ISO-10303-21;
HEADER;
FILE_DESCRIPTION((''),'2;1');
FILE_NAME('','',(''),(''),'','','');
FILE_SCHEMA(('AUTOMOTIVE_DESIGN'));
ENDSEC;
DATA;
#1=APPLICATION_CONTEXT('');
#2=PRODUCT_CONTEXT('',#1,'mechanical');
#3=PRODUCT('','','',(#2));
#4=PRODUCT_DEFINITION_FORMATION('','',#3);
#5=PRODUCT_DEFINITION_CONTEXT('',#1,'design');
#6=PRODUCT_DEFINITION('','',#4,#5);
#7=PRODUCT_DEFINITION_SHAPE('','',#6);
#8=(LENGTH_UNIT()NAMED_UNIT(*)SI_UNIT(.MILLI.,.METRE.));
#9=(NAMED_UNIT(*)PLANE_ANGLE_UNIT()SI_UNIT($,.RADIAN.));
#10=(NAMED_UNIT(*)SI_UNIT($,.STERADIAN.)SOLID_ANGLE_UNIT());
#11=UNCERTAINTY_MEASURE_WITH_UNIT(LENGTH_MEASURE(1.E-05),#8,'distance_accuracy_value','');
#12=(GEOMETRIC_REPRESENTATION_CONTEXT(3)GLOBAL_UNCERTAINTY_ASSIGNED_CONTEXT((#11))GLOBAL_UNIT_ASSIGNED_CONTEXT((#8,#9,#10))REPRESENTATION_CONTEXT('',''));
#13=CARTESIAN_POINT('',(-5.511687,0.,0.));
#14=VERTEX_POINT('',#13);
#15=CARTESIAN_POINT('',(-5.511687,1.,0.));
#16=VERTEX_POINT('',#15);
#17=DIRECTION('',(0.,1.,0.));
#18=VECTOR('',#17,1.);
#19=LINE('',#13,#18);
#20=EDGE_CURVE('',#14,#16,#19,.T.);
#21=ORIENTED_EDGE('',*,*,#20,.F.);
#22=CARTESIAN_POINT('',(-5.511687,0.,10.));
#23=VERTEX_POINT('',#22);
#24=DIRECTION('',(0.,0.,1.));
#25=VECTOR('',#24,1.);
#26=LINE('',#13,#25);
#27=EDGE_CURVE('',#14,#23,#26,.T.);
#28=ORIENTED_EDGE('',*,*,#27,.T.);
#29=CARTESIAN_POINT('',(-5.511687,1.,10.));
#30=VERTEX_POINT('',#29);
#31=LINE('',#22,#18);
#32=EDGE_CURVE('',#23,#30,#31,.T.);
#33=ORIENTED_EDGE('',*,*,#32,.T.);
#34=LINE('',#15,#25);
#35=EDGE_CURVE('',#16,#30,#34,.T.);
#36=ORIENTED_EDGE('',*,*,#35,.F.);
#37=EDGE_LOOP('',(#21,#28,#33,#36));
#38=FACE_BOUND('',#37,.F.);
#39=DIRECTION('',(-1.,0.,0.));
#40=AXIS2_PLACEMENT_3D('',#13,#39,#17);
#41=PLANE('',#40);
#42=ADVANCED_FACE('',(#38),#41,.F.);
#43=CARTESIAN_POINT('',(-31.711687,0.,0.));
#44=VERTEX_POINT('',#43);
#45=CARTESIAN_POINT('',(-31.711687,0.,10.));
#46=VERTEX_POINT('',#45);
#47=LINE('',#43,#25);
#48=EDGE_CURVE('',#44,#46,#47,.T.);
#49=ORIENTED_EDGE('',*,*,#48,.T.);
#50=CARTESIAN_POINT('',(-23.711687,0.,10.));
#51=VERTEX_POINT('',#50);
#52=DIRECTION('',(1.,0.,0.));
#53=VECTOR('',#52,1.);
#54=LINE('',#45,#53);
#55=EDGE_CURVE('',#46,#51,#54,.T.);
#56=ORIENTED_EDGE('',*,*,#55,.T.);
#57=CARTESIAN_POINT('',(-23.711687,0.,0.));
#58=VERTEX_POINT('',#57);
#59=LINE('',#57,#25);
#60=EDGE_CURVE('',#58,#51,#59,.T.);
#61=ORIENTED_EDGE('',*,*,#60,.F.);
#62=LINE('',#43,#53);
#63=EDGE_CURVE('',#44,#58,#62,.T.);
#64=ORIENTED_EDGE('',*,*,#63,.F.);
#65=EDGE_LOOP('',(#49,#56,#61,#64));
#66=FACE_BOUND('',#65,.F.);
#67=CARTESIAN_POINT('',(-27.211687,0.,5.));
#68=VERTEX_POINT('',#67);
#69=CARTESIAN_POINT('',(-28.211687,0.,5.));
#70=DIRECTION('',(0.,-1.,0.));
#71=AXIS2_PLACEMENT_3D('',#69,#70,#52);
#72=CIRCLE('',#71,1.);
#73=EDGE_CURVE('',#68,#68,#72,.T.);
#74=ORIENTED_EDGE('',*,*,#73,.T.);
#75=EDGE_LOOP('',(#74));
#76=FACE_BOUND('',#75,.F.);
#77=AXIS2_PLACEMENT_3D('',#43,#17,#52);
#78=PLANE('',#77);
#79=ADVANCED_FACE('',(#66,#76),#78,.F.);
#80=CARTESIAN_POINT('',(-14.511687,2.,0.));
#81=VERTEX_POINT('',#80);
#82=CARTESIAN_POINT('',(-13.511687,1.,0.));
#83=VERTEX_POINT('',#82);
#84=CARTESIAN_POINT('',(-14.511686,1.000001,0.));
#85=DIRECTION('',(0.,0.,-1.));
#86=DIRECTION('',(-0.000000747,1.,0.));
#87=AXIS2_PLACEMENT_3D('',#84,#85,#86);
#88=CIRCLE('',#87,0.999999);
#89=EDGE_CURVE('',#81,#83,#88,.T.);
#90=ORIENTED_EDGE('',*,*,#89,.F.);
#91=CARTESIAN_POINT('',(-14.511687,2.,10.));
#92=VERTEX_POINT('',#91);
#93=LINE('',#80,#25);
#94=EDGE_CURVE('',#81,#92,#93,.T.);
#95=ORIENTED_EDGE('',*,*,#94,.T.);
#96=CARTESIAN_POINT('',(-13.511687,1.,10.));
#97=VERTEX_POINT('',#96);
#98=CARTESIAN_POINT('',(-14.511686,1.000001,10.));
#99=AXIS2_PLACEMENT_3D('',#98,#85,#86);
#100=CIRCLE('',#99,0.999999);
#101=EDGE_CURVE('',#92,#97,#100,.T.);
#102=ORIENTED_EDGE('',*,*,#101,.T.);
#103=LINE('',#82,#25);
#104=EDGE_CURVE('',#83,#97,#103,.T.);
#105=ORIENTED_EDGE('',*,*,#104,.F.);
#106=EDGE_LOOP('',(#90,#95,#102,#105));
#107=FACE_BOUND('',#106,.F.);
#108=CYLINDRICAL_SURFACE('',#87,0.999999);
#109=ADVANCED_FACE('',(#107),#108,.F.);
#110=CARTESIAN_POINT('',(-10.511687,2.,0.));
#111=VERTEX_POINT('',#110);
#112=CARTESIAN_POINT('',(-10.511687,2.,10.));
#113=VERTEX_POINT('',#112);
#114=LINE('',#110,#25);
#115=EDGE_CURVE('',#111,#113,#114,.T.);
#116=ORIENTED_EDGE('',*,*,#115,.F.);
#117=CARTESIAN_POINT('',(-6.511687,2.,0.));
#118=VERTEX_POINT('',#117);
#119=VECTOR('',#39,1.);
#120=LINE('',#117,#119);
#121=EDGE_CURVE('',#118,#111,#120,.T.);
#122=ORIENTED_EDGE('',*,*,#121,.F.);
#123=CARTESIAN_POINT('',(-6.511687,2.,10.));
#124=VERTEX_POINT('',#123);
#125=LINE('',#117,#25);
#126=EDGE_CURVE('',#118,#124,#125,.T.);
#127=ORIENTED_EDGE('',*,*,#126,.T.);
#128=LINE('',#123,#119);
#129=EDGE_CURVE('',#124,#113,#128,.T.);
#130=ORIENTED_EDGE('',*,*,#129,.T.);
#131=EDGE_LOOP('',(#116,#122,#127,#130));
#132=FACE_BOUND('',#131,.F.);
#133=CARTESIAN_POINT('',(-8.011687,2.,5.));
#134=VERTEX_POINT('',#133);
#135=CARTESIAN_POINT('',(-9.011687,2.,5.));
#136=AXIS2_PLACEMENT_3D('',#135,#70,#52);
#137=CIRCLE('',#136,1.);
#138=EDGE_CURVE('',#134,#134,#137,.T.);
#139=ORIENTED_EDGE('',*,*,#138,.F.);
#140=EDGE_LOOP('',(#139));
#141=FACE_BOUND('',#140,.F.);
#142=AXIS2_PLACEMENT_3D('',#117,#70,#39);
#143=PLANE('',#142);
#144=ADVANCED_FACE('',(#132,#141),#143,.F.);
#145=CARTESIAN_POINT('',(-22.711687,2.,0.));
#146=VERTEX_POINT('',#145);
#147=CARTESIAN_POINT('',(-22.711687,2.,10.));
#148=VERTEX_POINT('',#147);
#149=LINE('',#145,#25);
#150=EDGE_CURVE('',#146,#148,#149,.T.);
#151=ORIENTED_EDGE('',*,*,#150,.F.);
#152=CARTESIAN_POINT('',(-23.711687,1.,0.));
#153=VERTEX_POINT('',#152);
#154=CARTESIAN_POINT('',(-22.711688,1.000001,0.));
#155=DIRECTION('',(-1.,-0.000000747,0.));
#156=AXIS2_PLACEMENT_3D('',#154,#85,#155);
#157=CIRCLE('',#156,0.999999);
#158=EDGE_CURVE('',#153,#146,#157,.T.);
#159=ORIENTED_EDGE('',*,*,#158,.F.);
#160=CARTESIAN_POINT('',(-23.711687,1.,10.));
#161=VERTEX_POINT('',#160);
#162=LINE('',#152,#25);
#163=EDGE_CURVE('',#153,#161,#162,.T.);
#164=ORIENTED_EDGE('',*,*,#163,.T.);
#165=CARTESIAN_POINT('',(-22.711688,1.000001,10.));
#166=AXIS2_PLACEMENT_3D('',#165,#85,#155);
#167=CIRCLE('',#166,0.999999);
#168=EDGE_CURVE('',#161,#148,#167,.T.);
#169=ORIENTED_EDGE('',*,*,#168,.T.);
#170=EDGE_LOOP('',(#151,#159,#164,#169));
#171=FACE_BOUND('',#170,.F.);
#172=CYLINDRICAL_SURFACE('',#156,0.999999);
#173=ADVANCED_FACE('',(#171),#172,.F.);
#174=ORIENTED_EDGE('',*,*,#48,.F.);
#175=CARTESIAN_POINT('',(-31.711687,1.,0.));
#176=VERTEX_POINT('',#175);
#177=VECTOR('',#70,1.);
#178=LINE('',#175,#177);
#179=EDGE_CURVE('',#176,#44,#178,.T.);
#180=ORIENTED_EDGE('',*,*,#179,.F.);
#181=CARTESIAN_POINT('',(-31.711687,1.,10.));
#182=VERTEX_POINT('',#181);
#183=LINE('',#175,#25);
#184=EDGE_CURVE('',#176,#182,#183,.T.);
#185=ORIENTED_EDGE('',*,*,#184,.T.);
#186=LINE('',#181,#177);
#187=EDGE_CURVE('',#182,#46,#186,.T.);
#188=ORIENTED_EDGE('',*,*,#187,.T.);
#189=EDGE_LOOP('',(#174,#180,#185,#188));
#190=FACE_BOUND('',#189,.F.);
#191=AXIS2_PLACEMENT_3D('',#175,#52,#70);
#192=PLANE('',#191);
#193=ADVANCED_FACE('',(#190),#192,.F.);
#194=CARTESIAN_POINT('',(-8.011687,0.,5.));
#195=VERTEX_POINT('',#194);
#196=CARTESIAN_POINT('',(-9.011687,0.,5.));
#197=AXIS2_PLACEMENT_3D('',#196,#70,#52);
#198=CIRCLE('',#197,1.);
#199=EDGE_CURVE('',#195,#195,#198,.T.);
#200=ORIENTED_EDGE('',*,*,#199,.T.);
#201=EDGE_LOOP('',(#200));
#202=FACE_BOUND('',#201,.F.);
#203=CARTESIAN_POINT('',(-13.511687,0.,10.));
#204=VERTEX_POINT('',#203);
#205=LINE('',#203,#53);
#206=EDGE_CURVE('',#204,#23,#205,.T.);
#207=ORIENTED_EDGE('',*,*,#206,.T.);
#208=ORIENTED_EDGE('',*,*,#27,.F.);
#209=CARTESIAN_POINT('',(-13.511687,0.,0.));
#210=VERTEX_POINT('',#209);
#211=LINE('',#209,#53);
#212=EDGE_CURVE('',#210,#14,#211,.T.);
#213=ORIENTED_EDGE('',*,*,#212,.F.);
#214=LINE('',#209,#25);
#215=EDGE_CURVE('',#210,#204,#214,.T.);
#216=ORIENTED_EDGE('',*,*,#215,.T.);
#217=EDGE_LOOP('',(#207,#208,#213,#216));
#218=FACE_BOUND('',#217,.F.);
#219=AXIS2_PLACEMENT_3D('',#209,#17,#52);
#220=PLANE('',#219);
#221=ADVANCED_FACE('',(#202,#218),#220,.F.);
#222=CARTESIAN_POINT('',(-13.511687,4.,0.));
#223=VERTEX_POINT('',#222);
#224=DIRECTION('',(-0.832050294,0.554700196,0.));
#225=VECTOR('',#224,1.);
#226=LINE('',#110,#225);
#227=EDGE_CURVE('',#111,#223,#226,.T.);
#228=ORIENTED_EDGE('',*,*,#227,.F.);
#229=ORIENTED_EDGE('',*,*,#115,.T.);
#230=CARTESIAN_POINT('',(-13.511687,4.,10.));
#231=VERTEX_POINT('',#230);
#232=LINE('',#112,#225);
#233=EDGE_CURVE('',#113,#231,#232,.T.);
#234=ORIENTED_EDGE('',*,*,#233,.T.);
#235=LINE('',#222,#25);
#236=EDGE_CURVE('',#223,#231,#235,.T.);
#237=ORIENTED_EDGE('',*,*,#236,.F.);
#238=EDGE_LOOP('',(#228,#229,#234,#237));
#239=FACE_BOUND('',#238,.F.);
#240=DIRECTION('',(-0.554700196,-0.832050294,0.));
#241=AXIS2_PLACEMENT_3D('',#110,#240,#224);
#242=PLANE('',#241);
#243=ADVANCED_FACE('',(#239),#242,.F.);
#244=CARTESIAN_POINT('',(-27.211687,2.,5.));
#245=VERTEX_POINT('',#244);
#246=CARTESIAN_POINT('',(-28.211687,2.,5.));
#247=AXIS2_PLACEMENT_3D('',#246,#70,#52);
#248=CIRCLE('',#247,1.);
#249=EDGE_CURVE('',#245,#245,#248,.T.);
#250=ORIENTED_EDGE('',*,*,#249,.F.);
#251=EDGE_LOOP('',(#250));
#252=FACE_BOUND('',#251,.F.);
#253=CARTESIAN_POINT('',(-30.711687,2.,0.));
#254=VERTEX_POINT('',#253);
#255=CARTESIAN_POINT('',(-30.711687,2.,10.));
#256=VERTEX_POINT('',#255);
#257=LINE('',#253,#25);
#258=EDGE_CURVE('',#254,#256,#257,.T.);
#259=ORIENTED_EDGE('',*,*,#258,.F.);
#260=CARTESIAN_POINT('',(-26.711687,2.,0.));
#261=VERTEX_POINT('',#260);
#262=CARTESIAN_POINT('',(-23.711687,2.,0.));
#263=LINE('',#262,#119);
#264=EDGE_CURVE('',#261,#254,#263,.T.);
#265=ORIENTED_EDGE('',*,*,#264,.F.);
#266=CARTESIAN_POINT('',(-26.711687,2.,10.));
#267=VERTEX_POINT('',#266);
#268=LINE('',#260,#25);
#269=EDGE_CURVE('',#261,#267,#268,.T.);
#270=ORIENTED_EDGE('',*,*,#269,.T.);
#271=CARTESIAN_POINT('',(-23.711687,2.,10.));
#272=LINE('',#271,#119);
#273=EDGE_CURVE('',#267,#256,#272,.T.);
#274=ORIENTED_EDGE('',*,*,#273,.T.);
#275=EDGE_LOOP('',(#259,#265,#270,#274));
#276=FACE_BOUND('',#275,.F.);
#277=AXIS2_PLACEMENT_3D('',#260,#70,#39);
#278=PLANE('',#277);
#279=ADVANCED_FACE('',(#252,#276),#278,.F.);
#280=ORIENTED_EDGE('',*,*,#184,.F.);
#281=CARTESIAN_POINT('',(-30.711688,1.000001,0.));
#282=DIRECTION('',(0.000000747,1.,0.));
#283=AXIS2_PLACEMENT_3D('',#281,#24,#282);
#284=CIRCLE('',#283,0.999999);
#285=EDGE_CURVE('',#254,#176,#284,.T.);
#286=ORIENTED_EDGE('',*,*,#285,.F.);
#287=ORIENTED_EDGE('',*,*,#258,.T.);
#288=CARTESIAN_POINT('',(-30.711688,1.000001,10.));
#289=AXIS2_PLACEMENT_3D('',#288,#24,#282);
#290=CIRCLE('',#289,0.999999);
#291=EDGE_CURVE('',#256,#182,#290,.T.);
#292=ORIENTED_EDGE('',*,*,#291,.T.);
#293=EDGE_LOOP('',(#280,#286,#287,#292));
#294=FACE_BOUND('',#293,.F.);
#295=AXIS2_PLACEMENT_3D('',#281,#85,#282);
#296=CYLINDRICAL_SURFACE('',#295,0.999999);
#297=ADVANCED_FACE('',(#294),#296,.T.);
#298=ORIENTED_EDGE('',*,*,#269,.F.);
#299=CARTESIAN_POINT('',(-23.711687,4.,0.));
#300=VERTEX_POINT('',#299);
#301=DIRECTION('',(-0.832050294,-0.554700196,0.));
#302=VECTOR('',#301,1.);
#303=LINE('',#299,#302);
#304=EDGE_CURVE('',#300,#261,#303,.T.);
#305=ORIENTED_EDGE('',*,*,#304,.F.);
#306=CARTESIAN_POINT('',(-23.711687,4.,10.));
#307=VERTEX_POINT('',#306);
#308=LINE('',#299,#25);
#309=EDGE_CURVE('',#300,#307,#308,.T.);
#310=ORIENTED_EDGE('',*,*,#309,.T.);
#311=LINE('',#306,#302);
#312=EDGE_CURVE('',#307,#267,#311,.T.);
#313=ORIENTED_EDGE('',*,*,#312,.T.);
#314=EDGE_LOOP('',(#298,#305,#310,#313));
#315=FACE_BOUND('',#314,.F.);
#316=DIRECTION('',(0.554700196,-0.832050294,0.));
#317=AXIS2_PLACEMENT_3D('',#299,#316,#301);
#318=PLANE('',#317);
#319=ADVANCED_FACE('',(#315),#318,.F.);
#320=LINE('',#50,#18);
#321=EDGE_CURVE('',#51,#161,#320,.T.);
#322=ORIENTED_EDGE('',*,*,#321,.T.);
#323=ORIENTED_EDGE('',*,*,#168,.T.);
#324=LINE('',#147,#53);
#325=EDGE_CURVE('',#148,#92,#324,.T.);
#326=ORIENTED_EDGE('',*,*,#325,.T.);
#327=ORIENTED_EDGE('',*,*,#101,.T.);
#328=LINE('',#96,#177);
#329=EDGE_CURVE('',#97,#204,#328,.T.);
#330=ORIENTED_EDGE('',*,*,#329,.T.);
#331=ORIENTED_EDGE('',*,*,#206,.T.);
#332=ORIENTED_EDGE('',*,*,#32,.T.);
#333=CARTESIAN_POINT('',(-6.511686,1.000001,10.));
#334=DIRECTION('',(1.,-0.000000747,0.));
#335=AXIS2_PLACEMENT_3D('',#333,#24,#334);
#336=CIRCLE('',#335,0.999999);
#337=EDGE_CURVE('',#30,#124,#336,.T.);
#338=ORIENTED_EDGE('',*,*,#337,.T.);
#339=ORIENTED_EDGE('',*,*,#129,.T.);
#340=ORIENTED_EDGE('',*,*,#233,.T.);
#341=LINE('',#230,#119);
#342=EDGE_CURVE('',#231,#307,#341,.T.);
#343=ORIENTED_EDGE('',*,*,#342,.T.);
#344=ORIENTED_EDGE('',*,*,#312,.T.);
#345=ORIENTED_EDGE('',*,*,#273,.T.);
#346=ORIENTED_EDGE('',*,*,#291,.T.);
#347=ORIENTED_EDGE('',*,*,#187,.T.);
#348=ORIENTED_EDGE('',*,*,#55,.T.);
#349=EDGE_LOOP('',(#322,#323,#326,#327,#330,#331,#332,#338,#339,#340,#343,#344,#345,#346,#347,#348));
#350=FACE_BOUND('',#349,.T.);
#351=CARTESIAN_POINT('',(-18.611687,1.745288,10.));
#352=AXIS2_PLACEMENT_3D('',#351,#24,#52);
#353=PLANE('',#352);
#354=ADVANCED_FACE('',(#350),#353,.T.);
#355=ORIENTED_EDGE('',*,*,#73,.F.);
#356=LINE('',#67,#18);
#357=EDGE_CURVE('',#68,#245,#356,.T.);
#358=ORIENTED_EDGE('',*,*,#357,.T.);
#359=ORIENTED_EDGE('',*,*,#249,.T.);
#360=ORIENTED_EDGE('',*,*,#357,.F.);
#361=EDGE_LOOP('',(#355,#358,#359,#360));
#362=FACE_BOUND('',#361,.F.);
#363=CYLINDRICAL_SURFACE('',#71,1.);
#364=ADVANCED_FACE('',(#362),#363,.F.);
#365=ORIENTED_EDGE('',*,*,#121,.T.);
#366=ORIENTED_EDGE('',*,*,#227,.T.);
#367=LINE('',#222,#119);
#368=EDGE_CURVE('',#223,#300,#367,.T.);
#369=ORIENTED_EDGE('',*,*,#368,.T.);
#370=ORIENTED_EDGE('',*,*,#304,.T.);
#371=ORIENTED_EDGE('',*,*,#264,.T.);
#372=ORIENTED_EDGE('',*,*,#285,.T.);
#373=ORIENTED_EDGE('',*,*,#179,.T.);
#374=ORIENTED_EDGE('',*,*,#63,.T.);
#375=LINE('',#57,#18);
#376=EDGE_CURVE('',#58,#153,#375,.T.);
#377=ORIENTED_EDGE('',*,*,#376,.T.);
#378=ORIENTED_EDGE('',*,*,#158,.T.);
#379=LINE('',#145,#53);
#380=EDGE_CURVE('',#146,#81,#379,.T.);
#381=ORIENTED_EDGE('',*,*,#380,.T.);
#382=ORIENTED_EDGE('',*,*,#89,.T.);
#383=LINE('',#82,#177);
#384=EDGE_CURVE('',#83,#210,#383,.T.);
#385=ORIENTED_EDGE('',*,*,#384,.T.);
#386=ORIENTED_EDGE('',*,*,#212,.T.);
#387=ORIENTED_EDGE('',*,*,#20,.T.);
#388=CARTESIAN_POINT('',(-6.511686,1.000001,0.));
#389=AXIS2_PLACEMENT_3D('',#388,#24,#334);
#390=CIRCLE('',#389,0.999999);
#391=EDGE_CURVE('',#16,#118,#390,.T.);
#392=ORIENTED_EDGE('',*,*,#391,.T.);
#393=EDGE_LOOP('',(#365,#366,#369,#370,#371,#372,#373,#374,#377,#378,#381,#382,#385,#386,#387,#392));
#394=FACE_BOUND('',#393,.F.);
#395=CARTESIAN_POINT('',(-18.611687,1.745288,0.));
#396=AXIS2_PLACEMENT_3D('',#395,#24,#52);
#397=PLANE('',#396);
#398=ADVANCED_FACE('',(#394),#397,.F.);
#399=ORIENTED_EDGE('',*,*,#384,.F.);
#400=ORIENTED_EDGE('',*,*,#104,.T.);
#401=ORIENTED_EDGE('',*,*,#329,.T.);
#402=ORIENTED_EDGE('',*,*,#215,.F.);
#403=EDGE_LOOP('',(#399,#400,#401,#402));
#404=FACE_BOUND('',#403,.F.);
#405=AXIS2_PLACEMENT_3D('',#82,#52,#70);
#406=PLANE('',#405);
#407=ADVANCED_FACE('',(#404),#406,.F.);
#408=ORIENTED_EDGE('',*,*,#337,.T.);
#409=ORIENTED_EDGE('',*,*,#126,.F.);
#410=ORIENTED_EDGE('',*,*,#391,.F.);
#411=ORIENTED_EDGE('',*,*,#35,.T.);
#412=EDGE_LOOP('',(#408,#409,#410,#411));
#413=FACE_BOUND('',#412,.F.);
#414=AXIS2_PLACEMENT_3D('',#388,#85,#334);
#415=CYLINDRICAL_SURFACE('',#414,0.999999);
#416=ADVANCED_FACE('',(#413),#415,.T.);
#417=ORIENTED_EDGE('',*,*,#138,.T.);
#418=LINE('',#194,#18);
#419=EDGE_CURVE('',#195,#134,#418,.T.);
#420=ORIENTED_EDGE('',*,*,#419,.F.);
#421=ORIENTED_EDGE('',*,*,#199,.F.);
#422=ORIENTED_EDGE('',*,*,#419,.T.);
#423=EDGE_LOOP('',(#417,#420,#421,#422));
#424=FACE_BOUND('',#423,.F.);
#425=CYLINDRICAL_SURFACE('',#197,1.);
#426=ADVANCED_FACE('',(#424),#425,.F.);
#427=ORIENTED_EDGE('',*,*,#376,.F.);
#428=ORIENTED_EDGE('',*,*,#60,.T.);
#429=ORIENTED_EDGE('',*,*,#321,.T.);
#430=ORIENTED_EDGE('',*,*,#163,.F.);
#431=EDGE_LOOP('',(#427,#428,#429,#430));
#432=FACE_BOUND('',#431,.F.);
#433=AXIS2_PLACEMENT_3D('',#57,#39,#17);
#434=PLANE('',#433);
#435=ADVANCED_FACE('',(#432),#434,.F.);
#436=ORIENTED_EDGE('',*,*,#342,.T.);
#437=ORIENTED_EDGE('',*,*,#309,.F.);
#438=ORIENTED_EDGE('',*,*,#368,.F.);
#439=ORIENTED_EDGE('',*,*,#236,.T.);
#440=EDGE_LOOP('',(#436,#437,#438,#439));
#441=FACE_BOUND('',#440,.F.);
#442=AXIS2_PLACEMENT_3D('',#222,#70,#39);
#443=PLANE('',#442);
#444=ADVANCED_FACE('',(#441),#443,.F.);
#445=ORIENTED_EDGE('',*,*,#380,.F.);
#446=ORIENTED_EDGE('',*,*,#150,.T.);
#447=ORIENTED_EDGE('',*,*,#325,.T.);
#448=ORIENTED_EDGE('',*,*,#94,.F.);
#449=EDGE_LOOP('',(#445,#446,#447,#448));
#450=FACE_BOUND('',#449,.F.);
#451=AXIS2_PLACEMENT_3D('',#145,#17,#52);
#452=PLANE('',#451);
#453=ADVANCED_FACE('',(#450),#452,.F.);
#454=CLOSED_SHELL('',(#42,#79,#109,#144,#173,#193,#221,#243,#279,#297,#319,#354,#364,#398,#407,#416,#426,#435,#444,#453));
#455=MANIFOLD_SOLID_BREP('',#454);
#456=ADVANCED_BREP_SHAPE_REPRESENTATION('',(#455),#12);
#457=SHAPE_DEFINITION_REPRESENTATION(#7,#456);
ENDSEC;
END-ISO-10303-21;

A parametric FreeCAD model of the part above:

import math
import FreeCAD as App
import Part
import Sketcher
from FreeCAD import Vector
Q = App.Units.Quantity

doc = App.newDocument("Part")
body = doc.addObject("PartDesign::Body", "Body")

# Sketch on XY plane
sketch1 = body.newObject("Sketcher::SketchObject", "Sketch")
sketch1.AttachmentSupport = (doc.getObject("XY_Plane"), [""])
sketch1.MapMode = "FlatFace"
sketch1.addGeometry([
    Part.LineSegment(Vector(-31.711687, 1, 0), Vector(-31.711687, 0, 0)),  # 0
    Part.LineSegment(Vector(-31.711687, 0, 0), Vector(-23.711687, 0, 0)),  # 1
    Part.LineSegment(Vector(-23.711687, 0, 0), Vector(-23.711687, 1, 0)),  # 2
    Part.ArcOfCircle(Part.Circle(Vector(-22.711688, 1.000001, 0), Vector(0, 0, 1), 0.999999), math.radians(89.999957), math.radians(180.000043)),  # 3
    Part.LineSegment(Vector(-22.711687, 2, 0), Vector(-14.511687, 2, 0)),  # 4
    Part.ArcOfCircle(Part.Circle(Vector(-14.511686, 1.000001, 0), Vector(0, 0, 1), 0.999999), math.radians(-0.000043), math.radians(90.000043)),  # 5
    Part.LineSegment(Vector(-13.511687, 1, 0), Vector(-13.511687, 0, 0)),  # 6
    Part.LineSegment(Vector(-13.511687, 0, 0), Vector(-5.511687, 0, 0)),  # 7
    Part.LineSegment(Vector(-5.511687, 0, 0), Vector(-5.511687, 1, 0)),  # 8
    Part.ArcOfCircle(Part.Circle(Vector(-6.511686, 1.000001, 0), Vector(0, 0, 1), 0.999999), math.radians(-0.000043), math.radians(90.000043)),  # 9
    Part.LineSegment(Vector(-6.511687, 2, 0), Vector(-10.511687, 2, 0)),  # 10
    Part.LineSegment(Vector(-10.511687, 2, 0), Vector(-13.511687, 4, 0)),  # 11
    Part.LineSegment(Vector(-13.511687, 4, 0), Vector(-23.711687, 4, 0)),  # 12
    Part.LineSegment(Vector(-23.711687, 4, 0), Vector(-26.711687, 2, 0)),  # 13
    Part.LineSegment(Vector(-26.711687, 2, 0), Vector(-30.711687, 2, 0)),  # 14
    Part.ArcOfCircle(Part.Circle(Vector(-30.711688, 1.000001, 0), Vector(0, 0, 1), 0.999999), math.radians(89.999957), math.radians(180.000043)),  # 15
], False)
sketch1.addConstraint([
    Sketcher.Constraint("Coincident", 0, 2, 1, 1),
    Sketcher.Constraint("Coincident", 1, 2, 2, 1),
    Sketcher.Constraint("Tangent", 2, 2, 3, 2),
    Sketcher.Constraint("Tangent", 3, 1, 4, 1),
    Sketcher.Constraint("Tangent", 4, 2, 5, 2),
    Sketcher.Constraint("Tangent", 5, 1, 6, 1),
    Sketcher.Constraint("Coincident", 6, 2, 7, 1),
    Sketcher.Constraint("Coincident", 7, 2, 8, 1),
    Sketcher.Constraint("Tangent", 8, 2, 9, 1),
    Sketcher.Constraint("Tangent", 9, 2, 10, 1),
    Sketcher.Constraint("Coincident", 10, 2, 11, 1),
    Sketcher.Constraint("Coincident", 11, 2, 12, 1),
    Sketcher.Constraint("Coincident", 12, 2, 13, 1),
    Sketcher.Constraint("Coincident", 13, 2, 14, 1),
    Sketcher.Constraint("Tangent", 14, 2, 15, 1),
    Sketcher.Constraint("Tangent", 15, 2, 0, 1),
    Sketcher.Constraint("Vertical", 0),
    Sketcher.Constraint("Horizontal", 1),
    Sketcher.Constraint("Vertical", 2),
    Sketcher.Constraint("Horizontal", 4),
    Sketcher.Constraint("Vertical", 6),
    Sketcher.Constraint("Horizontal", 7),
    Sketcher.Constraint("Vertical", 8),
    Sketcher.Constraint("Horizontal", 10),
    Sketcher.Constraint("Horizontal", 12),
    Sketcher.Constraint("Horizontal", 14),
    Sketcher.Constraint("Equal", 3, 5),
    Sketcher.Constraint("Equal", 5, 9),
    Sketcher.Constraint("Equal", 9, 15),
    Sketcher.Constraint("PointOnObject", 0, 2, -1),
    Sketcher.Constraint("PointOnObject", 6, 2, -1),
    Sketcher.Constraint("Horizontal", 5, 3, 9, 3),
    Sketcher.Constraint("Horizontal", 9, 3, 15, 3),
    Sketcher.Constraint("Vertical", 6, 2, 11, 2),
    Sketcher.Constraint("Vertical", 2, 2, 12, 2),
    Sketcher.Constraint("Equal", 1, 7),
    Sketcher.Constraint("Equal", 10, 14),
    Sketcher.Constraint("Radius", 3, Q("0.999999 mm")),
    Sketcher.Constraint("DistanceX", 1, 1, 1, 2, Q("8 mm")),
    Sketcher.Constraint("DistanceX", 10, 2, 10, 1, Q("4 mm")),
    Sketcher.Constraint("DistanceY", 0, 2, 0, 1, Q("1 mm")),
    Sketcher.Constraint("DistanceX", 4, 1, 4, 2, Q("8.2 mm")),
    Sketcher.Constraint("DistanceY", -1, 1, 11, 2, Q("4 mm")),
    Sketcher.Constraint("DistanceX", 3, 3, -1, 1, Q("22.711688 mm")),
])
pad1 = body.newObject("PartDesign::Pad", "Pad")
pad1.Profile = sketch1
pad1.Length = 10

# Sketch on XZ plane
sketch2 = body.newObject("Sketcher::SketchObject", "Sketch001")
sketch2.AttachmentSupport = (doc.getObject("XZ_Plane"), [""])
sketch2.MapMode = "FlatFace"
sketch2.addGeometry([
    Part.Circle(Vector(-28.211687, 5, 0), Vector(0, 0, 1), 1),
    Part.Circle(Vector(-9.011687, 5, 0), Vector(0, 0, 1), 1),
], False)
sketch2.addConstraint([
    Sketcher.Constraint("Equal", 0, 1),
    Sketcher.Constraint("Horizontal", 0, 3, 1, 3),
    Sketcher.Constraint("Diameter", 0, Q("2 mm")),
    Sketcher.Constraint("DistanceY", -1, 1, 0, 3, Q("5 mm")),
    Sketcher.Constraint("DistanceX", 0, 3, 1, 3, Q("19.2 mm")),
    Sketcher.Constraint("DistanceX", 0, 3, -1, 1, Q("28.211687 mm")),
])
pocket1 = body.newObject("PartDesign::Pocket", "Pocket")
pocket1.Profile = sketch2
pocket1.Type = "ThroughAll"

doc.recompute()
